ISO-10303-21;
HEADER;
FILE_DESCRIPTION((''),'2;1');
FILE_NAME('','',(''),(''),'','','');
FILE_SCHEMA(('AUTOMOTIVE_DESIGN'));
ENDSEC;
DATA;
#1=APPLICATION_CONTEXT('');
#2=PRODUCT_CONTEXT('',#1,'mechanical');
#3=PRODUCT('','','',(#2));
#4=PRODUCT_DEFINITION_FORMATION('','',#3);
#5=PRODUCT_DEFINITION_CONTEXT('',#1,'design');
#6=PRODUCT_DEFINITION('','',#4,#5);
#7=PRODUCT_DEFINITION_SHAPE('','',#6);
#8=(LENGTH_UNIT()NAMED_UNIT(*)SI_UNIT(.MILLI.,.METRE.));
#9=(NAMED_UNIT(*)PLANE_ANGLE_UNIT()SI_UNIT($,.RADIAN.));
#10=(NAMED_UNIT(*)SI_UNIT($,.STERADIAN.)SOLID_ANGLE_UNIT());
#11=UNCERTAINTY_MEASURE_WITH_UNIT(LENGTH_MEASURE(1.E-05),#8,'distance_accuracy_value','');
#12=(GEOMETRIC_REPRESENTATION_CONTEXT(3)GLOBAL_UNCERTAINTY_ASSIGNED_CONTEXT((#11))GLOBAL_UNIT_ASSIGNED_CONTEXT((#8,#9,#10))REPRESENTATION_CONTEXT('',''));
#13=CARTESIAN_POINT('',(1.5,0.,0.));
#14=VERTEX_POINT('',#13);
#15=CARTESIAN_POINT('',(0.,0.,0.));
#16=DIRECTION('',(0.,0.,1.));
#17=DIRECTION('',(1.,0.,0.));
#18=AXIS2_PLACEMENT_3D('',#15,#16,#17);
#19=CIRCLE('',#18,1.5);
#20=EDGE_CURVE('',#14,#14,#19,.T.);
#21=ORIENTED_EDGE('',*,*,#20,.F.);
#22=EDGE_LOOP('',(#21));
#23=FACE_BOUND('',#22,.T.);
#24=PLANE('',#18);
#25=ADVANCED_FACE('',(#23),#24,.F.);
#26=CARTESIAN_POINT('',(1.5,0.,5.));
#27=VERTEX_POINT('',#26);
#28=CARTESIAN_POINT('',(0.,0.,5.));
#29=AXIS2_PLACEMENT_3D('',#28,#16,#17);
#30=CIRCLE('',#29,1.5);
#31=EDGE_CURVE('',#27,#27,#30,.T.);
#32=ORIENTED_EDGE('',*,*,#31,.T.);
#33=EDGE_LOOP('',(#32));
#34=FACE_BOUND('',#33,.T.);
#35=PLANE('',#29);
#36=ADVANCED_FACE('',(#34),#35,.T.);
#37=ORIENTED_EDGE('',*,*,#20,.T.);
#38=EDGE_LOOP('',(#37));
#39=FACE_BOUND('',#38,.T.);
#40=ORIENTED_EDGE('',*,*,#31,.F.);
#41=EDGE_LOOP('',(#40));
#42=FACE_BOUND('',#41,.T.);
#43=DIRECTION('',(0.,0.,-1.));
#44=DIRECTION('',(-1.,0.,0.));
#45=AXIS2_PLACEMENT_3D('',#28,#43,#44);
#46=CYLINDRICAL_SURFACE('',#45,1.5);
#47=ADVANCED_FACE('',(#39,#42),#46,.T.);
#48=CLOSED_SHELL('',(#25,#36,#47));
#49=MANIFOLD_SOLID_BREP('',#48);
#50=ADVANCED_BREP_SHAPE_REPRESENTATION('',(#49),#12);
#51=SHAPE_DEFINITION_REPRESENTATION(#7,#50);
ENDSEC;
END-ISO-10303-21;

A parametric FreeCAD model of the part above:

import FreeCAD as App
import Part
import Sketcher
Q = App.Units.Quantity

doc = App.newDocument("Part")
params = doc.addObject("Spreadsheet::Sheet", "Params")
for row, (alias, value) in enumerate([
    ("sketch1_diameter", "3 mm"),
    ("pad1_length", "5 mm"),
], start=1):
    params.set(f"A{row}", alias)
    params.set(f"B{row}", "=" + value)
    params.setAlias(f"B{row}", alias)

body = doc.addObject("PartDesign::Body", "Body")

# Sketch on XY plane
sketch1 = body.newObject("Sketcher::SketchObject", "Sketch")
sketch1.AttachmentSupport = (doc.getObject("XY_Plane"), [""])
sketch1.MapMode = "FlatFace"
sketch1.addGeometry(Part.Circle(App.Vector(0, 0, 0), App.Vector(0, 0, 1), 1.5), False)
sketch1.addConstraint(Sketcher.Constraint("Coincident", 0, 3, -1, 1))
sketch1.addConstraint(Sketcher.Constraint("Diameter", 0, Q("3 mm")))
sketch1.setExpression("Constraints[1]", "Params.sketch1_diameter")
pad1 = body.newObject("PartDesign::Pad", "Pad")
pad1.Profile = sketch1
pad1.setExpression("Length", "Params.pad1_length")

doc.recompute()
